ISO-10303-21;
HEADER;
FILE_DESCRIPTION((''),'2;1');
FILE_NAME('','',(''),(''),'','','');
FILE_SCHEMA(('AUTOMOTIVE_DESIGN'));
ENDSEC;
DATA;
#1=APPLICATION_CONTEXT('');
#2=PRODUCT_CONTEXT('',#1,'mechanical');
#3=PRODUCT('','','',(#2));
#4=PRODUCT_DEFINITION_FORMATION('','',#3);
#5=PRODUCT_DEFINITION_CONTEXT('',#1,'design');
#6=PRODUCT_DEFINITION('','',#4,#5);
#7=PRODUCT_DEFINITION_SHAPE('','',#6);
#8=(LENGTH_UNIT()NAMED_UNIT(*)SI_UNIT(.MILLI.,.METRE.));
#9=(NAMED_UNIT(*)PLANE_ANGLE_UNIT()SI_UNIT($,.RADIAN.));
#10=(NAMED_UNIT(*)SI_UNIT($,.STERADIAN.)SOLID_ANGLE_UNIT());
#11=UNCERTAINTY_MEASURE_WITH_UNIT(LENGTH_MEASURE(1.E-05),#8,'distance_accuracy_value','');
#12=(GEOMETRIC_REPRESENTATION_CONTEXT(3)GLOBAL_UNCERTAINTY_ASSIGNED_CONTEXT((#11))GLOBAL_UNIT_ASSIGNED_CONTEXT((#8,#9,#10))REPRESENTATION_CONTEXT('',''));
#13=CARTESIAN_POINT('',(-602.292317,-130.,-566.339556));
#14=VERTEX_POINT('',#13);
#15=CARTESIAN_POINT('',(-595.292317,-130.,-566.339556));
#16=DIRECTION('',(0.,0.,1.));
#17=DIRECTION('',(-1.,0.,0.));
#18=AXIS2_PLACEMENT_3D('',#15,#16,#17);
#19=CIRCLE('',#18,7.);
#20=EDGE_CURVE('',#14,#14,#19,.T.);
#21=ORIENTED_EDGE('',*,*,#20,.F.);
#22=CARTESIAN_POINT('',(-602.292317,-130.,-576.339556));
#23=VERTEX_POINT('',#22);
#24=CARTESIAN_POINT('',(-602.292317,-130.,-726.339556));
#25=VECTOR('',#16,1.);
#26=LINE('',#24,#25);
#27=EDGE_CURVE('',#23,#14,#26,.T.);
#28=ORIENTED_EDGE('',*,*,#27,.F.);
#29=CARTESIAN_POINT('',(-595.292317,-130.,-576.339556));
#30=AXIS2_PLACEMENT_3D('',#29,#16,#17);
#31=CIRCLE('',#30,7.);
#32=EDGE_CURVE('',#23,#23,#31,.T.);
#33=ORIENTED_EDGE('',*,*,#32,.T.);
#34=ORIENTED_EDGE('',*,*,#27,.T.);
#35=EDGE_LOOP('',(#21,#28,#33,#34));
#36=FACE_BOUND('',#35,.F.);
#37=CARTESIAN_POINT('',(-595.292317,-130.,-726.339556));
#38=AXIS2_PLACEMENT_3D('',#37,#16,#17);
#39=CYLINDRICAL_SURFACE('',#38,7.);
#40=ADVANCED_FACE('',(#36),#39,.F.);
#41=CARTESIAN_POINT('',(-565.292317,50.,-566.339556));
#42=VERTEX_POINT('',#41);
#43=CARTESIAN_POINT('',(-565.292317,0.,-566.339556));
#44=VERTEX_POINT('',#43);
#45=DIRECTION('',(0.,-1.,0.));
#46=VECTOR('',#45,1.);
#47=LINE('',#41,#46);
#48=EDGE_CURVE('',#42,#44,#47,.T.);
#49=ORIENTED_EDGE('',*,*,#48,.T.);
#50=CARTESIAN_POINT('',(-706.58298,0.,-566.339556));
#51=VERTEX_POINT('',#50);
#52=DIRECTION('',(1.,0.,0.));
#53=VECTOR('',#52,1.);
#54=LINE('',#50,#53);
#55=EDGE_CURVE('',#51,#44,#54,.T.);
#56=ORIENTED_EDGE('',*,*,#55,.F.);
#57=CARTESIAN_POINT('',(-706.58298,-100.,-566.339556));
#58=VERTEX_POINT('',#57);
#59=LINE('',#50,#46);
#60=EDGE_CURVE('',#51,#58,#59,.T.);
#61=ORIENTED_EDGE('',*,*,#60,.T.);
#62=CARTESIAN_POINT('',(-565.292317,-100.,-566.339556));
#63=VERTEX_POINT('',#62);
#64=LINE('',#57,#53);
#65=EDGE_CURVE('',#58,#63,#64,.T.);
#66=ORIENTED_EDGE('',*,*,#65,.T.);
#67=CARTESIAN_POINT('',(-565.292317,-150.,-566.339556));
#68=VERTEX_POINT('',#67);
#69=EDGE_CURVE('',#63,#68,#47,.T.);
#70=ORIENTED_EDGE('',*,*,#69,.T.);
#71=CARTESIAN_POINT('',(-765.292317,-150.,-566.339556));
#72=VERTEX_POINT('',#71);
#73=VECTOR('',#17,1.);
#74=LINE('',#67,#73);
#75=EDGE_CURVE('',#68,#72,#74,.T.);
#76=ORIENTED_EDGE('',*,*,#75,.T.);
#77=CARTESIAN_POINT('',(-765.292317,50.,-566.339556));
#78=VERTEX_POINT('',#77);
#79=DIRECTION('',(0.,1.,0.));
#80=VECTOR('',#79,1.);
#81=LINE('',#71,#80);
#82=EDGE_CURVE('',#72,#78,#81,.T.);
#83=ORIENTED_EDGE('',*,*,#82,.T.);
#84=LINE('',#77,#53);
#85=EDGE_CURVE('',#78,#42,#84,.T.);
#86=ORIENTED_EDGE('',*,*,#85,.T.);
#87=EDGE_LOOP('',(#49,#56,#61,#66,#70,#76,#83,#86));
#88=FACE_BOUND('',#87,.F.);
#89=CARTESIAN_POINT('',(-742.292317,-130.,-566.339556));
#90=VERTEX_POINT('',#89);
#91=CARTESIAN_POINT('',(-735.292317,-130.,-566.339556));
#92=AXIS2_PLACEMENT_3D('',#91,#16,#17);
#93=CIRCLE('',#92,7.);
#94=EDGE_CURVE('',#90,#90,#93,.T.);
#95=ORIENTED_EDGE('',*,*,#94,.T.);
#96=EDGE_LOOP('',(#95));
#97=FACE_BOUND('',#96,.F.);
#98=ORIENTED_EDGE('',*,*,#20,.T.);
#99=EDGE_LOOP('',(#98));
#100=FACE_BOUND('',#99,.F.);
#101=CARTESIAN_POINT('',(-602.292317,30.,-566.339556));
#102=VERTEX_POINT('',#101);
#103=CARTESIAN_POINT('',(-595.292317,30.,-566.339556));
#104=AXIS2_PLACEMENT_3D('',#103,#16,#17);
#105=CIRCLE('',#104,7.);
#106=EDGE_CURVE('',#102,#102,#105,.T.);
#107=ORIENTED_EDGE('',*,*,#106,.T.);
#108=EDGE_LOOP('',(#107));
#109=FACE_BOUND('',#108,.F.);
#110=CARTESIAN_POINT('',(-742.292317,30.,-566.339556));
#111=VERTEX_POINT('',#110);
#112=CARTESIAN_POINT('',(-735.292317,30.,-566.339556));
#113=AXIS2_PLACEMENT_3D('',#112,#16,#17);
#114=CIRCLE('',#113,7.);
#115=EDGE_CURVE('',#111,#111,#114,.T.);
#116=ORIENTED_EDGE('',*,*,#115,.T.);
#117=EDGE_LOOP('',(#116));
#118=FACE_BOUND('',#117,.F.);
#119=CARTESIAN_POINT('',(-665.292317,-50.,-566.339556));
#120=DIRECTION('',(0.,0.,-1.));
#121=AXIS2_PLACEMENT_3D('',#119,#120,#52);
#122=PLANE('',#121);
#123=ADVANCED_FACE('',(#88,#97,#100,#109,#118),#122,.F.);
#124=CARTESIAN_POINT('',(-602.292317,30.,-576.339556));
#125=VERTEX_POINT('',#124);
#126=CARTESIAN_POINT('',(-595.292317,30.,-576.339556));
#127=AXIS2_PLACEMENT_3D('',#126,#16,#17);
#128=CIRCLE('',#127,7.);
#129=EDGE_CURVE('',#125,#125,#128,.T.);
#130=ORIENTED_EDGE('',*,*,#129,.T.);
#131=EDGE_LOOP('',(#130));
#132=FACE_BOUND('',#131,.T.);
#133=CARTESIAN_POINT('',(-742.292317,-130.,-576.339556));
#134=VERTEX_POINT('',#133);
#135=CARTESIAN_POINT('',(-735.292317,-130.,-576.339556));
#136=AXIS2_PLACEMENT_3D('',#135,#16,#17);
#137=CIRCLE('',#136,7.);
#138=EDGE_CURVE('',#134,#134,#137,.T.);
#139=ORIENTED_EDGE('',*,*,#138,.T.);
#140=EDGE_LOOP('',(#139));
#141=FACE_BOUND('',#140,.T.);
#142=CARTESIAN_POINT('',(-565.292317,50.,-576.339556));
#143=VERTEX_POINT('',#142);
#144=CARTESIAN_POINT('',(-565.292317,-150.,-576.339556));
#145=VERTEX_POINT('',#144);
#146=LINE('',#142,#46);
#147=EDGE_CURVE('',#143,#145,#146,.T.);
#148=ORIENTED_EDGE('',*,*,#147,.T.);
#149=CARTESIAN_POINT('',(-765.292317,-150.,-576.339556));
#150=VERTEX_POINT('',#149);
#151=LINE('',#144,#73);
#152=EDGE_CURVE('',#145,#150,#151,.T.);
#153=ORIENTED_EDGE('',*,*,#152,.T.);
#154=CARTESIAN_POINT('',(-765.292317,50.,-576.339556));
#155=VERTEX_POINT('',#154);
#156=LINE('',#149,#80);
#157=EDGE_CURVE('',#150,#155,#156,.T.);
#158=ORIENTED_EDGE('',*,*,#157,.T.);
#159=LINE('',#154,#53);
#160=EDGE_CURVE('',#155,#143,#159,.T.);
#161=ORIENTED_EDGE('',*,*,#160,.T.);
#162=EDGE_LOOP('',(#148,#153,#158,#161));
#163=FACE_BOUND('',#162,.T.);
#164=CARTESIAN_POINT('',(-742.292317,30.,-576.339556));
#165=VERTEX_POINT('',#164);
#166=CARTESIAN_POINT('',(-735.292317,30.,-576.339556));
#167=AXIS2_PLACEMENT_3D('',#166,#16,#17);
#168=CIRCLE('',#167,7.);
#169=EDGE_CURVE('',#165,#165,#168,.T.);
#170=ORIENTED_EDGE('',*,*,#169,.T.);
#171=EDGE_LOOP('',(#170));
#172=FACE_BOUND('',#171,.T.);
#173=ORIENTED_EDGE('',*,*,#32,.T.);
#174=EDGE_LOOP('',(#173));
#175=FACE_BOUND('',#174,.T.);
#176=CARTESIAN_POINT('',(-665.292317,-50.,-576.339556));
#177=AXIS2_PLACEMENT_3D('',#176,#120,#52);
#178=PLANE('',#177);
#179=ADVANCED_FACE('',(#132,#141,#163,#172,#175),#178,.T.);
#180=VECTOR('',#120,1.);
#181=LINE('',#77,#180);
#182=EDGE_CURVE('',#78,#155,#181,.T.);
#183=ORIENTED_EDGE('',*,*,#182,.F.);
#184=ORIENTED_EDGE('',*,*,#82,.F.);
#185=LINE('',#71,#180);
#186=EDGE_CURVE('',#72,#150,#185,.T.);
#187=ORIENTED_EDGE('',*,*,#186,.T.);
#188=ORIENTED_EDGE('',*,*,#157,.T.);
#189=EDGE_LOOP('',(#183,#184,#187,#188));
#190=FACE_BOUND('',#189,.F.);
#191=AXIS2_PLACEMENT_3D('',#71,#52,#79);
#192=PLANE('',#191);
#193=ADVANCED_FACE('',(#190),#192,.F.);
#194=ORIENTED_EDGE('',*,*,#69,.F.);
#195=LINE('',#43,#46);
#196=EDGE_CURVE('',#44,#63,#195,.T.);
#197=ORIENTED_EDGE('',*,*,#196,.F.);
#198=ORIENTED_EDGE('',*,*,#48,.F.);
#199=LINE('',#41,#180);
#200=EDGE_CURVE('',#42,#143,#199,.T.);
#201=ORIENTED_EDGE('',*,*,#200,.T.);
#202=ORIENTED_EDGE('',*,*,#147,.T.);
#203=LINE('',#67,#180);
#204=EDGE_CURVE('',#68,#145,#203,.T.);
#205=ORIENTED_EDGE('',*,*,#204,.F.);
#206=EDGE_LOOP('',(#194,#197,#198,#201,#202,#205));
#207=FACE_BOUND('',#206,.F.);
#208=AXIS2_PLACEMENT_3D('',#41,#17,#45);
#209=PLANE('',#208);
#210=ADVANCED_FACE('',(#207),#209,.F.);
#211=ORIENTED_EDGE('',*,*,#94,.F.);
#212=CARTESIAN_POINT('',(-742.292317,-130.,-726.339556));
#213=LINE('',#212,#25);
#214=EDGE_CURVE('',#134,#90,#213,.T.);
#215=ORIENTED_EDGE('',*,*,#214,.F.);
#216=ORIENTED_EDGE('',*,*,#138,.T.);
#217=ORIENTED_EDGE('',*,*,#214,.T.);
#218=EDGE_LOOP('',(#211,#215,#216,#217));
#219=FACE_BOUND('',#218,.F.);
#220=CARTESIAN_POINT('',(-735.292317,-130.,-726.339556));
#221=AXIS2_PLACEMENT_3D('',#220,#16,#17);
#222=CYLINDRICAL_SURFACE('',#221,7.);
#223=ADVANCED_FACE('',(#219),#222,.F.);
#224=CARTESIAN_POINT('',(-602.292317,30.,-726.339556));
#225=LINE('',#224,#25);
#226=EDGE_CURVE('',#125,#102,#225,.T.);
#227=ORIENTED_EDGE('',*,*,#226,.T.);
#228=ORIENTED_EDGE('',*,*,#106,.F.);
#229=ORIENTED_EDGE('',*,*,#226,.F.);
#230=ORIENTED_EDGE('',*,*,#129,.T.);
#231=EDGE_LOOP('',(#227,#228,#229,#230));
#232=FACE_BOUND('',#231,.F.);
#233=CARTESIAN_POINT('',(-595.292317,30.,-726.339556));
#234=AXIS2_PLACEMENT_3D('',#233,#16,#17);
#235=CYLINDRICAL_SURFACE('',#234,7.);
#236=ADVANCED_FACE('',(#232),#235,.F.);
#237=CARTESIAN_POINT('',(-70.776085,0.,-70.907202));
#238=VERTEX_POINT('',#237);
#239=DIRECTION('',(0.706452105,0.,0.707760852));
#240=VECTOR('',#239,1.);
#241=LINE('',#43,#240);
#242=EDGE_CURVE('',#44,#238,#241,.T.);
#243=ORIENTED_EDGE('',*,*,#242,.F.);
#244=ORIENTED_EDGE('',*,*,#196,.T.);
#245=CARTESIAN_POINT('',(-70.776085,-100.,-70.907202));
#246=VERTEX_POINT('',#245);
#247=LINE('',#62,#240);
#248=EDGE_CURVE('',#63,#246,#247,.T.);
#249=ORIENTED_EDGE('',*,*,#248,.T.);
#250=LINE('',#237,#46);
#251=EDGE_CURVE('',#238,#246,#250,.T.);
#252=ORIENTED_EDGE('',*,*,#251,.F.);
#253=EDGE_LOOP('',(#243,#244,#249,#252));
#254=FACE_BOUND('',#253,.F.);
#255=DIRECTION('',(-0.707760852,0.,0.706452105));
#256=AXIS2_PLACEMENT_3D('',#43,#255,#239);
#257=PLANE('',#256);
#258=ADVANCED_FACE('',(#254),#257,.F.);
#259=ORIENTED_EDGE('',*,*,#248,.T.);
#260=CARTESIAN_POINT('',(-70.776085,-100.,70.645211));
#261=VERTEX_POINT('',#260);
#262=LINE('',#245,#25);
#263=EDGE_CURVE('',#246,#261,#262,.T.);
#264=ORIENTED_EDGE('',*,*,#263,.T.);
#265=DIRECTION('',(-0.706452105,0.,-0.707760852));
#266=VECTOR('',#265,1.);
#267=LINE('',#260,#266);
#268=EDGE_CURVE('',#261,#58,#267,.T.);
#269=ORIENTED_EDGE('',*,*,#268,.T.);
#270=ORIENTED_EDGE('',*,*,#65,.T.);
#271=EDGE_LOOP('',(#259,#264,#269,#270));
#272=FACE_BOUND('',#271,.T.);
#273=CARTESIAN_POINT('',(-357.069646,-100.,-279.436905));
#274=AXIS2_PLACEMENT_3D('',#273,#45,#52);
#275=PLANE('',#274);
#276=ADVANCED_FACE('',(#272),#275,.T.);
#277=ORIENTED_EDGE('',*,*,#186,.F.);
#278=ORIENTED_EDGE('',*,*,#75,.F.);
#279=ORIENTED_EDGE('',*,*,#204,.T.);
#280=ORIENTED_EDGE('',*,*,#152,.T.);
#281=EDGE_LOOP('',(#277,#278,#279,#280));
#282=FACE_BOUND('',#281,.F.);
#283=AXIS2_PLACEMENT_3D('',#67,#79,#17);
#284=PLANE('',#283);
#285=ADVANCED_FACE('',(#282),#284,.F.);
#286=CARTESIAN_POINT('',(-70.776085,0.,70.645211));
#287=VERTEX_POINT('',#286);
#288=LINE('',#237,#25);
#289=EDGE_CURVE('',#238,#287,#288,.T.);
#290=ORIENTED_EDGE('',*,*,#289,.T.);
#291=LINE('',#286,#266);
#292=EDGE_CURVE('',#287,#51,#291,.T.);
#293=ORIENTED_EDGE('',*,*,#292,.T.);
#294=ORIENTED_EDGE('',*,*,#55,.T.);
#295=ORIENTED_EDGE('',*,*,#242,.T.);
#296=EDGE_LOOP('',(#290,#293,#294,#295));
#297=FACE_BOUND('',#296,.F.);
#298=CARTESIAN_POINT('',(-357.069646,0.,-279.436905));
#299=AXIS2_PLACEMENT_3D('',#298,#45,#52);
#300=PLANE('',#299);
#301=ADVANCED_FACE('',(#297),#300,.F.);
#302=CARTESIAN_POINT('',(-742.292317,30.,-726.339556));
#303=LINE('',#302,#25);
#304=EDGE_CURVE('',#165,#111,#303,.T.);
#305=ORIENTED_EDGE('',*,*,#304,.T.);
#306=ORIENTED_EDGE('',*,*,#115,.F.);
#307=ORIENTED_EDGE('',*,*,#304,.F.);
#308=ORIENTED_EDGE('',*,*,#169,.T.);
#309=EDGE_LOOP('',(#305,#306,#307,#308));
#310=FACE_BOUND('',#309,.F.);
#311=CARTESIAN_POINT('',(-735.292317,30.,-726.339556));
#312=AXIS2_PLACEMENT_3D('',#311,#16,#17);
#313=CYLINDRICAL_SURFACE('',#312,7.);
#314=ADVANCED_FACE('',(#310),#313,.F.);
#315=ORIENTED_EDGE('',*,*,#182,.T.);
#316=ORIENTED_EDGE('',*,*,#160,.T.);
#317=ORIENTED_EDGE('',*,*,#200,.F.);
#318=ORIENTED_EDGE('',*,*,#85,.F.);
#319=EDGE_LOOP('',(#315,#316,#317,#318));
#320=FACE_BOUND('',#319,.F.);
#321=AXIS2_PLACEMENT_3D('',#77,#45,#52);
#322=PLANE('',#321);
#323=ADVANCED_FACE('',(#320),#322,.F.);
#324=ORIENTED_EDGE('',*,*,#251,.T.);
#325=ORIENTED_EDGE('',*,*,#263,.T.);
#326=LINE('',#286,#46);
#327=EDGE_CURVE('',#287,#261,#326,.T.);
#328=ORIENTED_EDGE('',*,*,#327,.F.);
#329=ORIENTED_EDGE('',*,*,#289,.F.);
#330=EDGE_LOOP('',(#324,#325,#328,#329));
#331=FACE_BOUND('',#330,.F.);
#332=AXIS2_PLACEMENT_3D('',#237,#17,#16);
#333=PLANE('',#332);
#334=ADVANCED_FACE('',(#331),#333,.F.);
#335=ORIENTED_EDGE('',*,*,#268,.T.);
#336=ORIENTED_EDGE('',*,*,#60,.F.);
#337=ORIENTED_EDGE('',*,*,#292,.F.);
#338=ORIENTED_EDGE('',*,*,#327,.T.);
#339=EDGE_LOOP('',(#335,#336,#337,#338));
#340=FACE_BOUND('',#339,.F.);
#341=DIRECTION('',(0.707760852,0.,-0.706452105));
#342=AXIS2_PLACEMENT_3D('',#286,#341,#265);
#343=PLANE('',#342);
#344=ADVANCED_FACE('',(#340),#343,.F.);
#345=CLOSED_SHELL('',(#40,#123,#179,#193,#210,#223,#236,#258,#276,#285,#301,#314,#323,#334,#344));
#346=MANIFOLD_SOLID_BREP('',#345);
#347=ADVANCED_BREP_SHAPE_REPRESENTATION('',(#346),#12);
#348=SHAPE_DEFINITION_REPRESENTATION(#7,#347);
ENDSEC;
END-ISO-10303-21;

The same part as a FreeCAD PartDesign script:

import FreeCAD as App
import Part
import Sketcher
Q = App.Units.Quantity

doc = App.newDocument("Part")
body = doc.addObject("PartDesign::Body", "Body")

sketch1 = body.newObject("Sketcher::SketchObject", "Sketch")
sketch1.AttachmentSupport = (doc.getObject("XZ_Plane"), [""])
sketch1.MapMode = "FlatFace"
sketch1.addGeometry([
    Part.LineSegment(App.Vector(-71, -71, 0), App.Vector(-71, 71, 0)),
    Part.LineSegment(App.Vector(-71, 71, 0), App.Vector(-707, -566, 0)),
    Part.LineSegment(App.Vector(-707, -566, 0), App.Vector(-565, -566, 0)),
    Part.LineSegment(App.Vector(-565, -566, 0), App.Vector(-71, -71, 0)),
], False)
sketch1.addConstraint([
    Sketcher.Constraint("Coincident", 0, 2, 1, 1),
    Sketcher.Constraint("Coincident", 1, 2, 2, 1),
    Sketcher.Constraint("Coincident", 2, 2, 3, 1),
    Sketcher.Constraint("Coincident", 3, 2, 0, 1),
    Sketcher.Constraint("Vertical", 0),
    Sketcher.Constraint("Horizontal", 2),
    Sketcher.Constraint("Parallel", 1, 3),
    Sketcher.Constraint("Distance", 1, Q("900.000001 mm")),
    Sketcher.Constraint("DistanceY", 3, 2, -1, 1, Q("70.907202 mm")),
    Sketcher.Constraint("DistanceX", 2, 1, 2, 2, Q("141.290663 mm")),
    Sketcher.Constraint("DistanceY", 0, 1, 0, 2, Q("141.552413 mm")),
    Sketcher.Constraint("DistanceX", 1, 2, -1, 1, Q("706.58298 mm")),
])
pad1 = body.newObject("PartDesign::Pad", "Pad")
pad1.Profile = sketch1
pad1.Length = 100

sketch2 = body.newObject("Sketcher::SketchObject", "Sketch001")
sketch2.AttachmentSupport = (doc.getObject("XY_Plane"), [""])
sketch2.MapMode = "FlatFace"
sketch2.AttachmentOffset = App.Placement(App.Vector(0, 0, -566.339556), App.Rotation())
sketch2.addGeometry([
    Part.LineSegment(App.Vector(-565, 50, 0), App.Vector(-565, -150, 0)),
    Part.LineSegment(App.Vector(-565, -150, 0), App.Vector(-765, -150, 0)),
    Part.LineSegment(App.Vector(-765, -150, 0), App.Vector(-765, 50, 0)),
    Part.LineSegment(App.Vector(-765, 50, 0), App.Vector(-565, 50, 0)),
], False)
sketch2.addConstraint([
    Sketcher.Constraint("Coincident", 0, 2, 1, 1),
    Sketcher.Constraint("Coincident", 1, 2, 2, 1),
    Sketcher.Constraint("Coincident", 2, 2, 3, 1),
    Sketcher.Constraint("Coincident", 3, 2, 0, 1),
    Sketcher.Constraint("Vertical", 0),
    Sketcher.Constraint("Horizontal", 1),
    Sketcher.Constraint("Vertical", 2),
    Sketcher.Constraint("Horizontal", 3),
    Sketcher.Constraint("Equal", 3, 0),
    Sketcher.Constraint("DistanceX", 1, 2, 1, 1, Q("200 mm")),
    Sketcher.Constraint("DistanceY", 0, 2, -1, 1, Q("150 mm")),
    Sketcher.Constraint("DistanceX", 0, 2, -1, 1, Q("565.292317 mm")),
])
pad2 = body.newObject("PartDesign::Pad", "Pad001")
pad2.Profile = sketch2
pad2.Length = 10
pad2.Reversed = True

sketch3 = body.newObject("Sketcher::SketchObject", "Sketch002")
sketch3.AttachmentSupport = (doc.getObject("XY_Plane"), [""])
sketch3.MapMode = "FlatFace"
sketch3.AttachmentOffset = App.Placement(App.Vector(0, 0, -576.339556), App.Rotation())
sketch3.addGeometry([
    Part.Circle(App.Vector(-735, -130, 0), App.Vector(0, 0, 1), 7),
    Part.Circle(App.Vector(-595, -130, 0), App.Vector(0, 0, 1), 7),
    Part.Circle(App.Vector(-595, 30, 0), App.Vector(0, 0, 1), 7),
    Part.Circle(App.Vector(-735, 30, 0), App.Vector(0, 0, 1), 7),
], False)
sketch3.addConstraint([
    Sketcher.Constraint("Equal", 0, 1),
    Sketcher.Constraint("Equal", 1, 2),
    Sketcher.Constraint("Equal", 2, 3),
    Sketcher.Constraint("Horizontal", 0, 3, 1, 3),
    Sketcher.Constraint("Horizontal", 2, 3, 3, 3),
    Sketcher.Constraint("Vertical", 1, 3, 2, 3),
    Sketcher.Constraint("Vertical", 0, 3, 3, 3),
    Sketcher.Constraint("Diameter", 0, Q("14 mm")),
    Sketcher.Constraint("DistanceY", 0, 3, -1, 1, Q("130 mm")),
    Sketcher.Constraint("DistanceY", -1, 1, 2, 3, Q("30 mm")),
    Sketcher.Constraint("DistanceX", 0, 3, 1, 3, Q("140 mm")),
    Sketcher.Constraint("DistanceX", 0, 3, -1, 1, Q("735.292317 mm")),
])
doc.recompute()
hole = body.newObject("PartDesign::Hole", "Hole")
hole.Profile = sketch3
hole.ThreadType = "None"
hole.Diameter = 14
hole.DepthType = "Dimension"
hole.Depth = 150
hole.DrillPoint = "Flat"
hole.Reversed = True

doc.recompute()
